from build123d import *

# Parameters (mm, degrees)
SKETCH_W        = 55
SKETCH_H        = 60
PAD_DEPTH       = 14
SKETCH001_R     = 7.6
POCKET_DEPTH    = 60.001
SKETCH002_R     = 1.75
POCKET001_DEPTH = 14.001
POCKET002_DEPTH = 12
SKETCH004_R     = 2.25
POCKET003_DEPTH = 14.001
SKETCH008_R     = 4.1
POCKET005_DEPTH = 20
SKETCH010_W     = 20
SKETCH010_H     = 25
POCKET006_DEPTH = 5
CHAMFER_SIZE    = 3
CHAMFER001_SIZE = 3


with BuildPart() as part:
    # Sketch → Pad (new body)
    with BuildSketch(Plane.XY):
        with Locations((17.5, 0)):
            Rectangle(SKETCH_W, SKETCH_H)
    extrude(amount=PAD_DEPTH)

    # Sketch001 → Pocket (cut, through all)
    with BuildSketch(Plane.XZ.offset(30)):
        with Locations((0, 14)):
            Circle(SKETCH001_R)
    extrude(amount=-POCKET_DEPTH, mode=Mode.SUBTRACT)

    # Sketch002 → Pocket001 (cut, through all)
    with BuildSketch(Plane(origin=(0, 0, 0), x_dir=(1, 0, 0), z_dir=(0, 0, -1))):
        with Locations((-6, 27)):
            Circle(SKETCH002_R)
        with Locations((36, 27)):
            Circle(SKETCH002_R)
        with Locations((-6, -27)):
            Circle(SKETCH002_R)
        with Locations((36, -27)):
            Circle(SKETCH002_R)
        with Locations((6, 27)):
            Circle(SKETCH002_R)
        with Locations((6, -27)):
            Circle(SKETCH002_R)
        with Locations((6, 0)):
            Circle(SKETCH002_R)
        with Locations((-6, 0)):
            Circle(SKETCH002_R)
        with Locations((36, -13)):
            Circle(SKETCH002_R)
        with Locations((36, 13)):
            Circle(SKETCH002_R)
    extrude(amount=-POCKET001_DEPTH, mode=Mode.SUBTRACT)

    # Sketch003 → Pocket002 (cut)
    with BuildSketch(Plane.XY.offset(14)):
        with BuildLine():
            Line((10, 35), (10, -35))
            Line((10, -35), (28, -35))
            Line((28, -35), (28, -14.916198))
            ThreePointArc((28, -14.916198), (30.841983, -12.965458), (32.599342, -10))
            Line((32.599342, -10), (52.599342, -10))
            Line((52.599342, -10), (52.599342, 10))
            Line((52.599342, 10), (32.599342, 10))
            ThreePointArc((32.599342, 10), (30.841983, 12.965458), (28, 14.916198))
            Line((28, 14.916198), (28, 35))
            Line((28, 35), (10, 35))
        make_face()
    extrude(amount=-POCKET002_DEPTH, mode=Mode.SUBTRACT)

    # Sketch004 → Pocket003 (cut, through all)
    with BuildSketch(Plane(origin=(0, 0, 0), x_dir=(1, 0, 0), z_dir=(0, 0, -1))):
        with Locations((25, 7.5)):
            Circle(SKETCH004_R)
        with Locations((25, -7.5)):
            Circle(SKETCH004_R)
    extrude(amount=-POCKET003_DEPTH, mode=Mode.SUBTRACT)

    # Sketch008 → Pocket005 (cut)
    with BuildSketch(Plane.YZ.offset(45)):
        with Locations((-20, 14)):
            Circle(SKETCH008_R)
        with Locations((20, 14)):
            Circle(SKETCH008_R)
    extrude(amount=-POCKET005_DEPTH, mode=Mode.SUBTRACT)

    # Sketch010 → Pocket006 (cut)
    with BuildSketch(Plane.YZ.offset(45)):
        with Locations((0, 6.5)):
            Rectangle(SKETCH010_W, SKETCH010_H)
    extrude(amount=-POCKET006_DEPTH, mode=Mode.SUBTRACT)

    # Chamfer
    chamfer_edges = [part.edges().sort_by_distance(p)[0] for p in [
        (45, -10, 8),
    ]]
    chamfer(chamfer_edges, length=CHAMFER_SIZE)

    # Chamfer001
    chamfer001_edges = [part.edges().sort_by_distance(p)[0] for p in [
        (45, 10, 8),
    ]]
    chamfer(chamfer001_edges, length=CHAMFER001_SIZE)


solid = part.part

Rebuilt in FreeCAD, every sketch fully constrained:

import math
import FreeCAD as App
import Part
import Sketcher


def edges_at(feature, points):
    """Names of the edges that pass closest to the given points."""
    edges = feature.Shape.Edges
    near = lambda p: min(range(len(edges)), key=lambda i: edges[i].distToShape(Part.Vertex(*p))[0])
    return sorted({f"Edge{near(p) + 1}" for p in points})


def add_polygon(sketch, points):
    """Adds a closed chain of lines whose ends are joined by coincident constraints."""
    first, n = sketch.GeometryCount, len(points)
    for a, b in zip(points, points[1:] + points[:1]):
        sketch.addGeometry(Part.LineSegment(App.Vector(*a, 0), App.Vector(*b, 0)), False)
    for i in range(n):
        sketch.addConstraint(Sketcher.Constraint("Coincident", first + i, 2, first + (i + 1) % n, 1))

doc = App.newDocument("Part")
body = doc.addObject("PartDesign::Body", "Body")

# Sketch on XY plane
sketch1 = body.newObject("Sketcher::SketchObject", "Sketch")
sketch1.AttachmentSupport = (doc.getObject("XY_Plane"), [""])
sketch1.MapMode = "FlatFace"
add_polygon(sketch1, [(-10, 30), (-10, -30), (45, -30), (45, 30)])  # lines 0-3
sketch1.addConstraint([
    Sketcher.Constraint("Vertical", 0),
    Sketcher.Constraint("Horizontal", 1),
    Sketcher.Constraint("Vertical", 2),
    Sketcher.Constraint("Horizontal", 3),
    Sketcher.Constraint("DistanceX", 1, 1, 1, 2, 55.0),
    Sketcher.Constraint("DistanceY", 0, 2, 0, 1, 60.0),
    Sketcher.Constraint("DistanceX", 0, 2, -1, 1, 10.0),
    Sketcher.Constraint("DistanceY", 0, 2, -1, 1, 30.0),
])
pad1 = body.newObject("PartDesign::Pad", "Pad")
pad1.Profile = sketch1
pad1.Length = 14

# Sketch on XZ plane
sketch2 = body.newObject("Sketcher::SketchObject", "Sketch001")
sketch2.AttachmentSupport = (doc.getObject("XZ_Plane"), [""])
sketch2.MapMode = "FlatFace"
sketch2.AttachmentOffset = App.Placement(App.Vector(0, 0, 30), App.Rotation())
sketch2.addGeometry(Part.Circle(App.Vector(0, 14, 0), App.Vector(0, 0, 1), 8), False)
sketch2.addConstraint([
    Sketcher.Constraint("PointOnObject", 0, 3, -2),
    Sketcher.Constraint("Diameter", 0, 15.2),
    Sketcher.Constraint("DistanceY", -1, 1, 0, 3, 14.0),
])
pocket1 = body.newObject("PartDesign::Pocket", "Pocket")
pocket1.Profile = sketch2
pocket1.Type = "ThroughAll"

# Sketch on XY plane
sketch3 = body.newObject("Sketcher::SketchObject", "Sketch002")
sketch3.AttachmentSupport = (doc.getObject("XY_Plane"), [""])
sketch3.MapMode = "FlatFace"
sketch3.addGeometry([
    Part.Circle(App.Vector(-6, -27, 0), App.Vector(0, 0, 1), 1.8),  # 0
    Part.Circle(App.Vector(36, -27, 0), App.Vector(0, 0, 1), 1.8),  # 1
    Part.Circle(App.Vector(-6, 27, 0), App.Vector(0, 0, 1), 1.8),  # 2
    Part.Circle(App.Vector(36, 27, 0), App.Vector(0, 0, 1), 1.8),  # 3
    Part.Circle(App.Vector(6, -27, 0), App.Vector(0, 0, 1), 1.8),  # 4
    Part.Circle(App.Vector(6, 27, 0), App.Vector(0, 0, 1), 1.8),  # 5
    Part.Circle(App.Vector(6, 0, 0), App.Vector(0, 0, 1), 1.8),  # 6
    Part.Circle(App.Vector(-6, 0, 0), App.Vector(0, 0, 1), 1.8),  # 7
    Part.Circle(App.Vector(36, 13, 0), App.Vector(0, 0, 1), 1.8),  # 8
    Part.Circle(App.Vector(36, -13, 0), App.Vector(0, 0, 1), 1.8),  # 9
], False)
sketch3.addConstraint([
    Sketcher.Constraint("Equal", 0, 1),
    Sketcher.Constraint("Equal", 1, 2),
    Sketcher.Constraint("Equal", 2, 3),
    Sketcher.Constraint("Equal", 3, 4),
    Sketcher.Constraint("Equal", 4, 5),
    Sketcher.Constraint("Equal", 5, 6),
    Sketcher.Constraint("Equal", 6, 7),
    Sketcher.Constraint("Equal", 7, 8),
    Sketcher.Constraint("Equal", 8, 9),
    Sketcher.Constraint("Symmetric", 2, 3, 4, 3, -1, 1),
    Sketcher.Constraint("Symmetric", 0, 3, 5, 3, -1, 1),
    Sketcher.Constraint("Symmetric", 6, 3, 7, 3, -1, 1),
    Sketcher.Constraint("Symmetric", 0, 3, 4, 3, -2),
    Sketcher.Constraint("Symmetric", 1, 3, 3, 3, -1),
    Sketcher.Constraint("Symmetric", 8, 3, 9, 3, -1),
    Sketcher.Constraint("PointOnObject", 6, 3, -1),
    Sketcher.Constraint("Horizontal", 0, 3, 1, 3),
    Sketcher.Constraint("Vertical", 5, 3, 6, 3),
    Sketcher.Constraint("Vertical", 3, 3, 8, 3),
    Sketcher.Constraint("Diameter", 0, 3.5),
    Sketcher.Constraint("DistanceX", 0, 3, -1, 1, 6.0),
    Sketcher.Constraint("DistanceY", 0, 3, -1, 1, 27.0),
    Sketcher.Constraint("DistanceX", -1, 1, 1, 3, 36.0),
    Sketcher.Constraint("DistanceY", -1, 1, 8, 3, 13.0),
])
pocket2 = body.newObject("PartDesign::Pocket", "Pocket001")
pocket2.Profile = sketch3
pocket2.Type = "ThroughAll"
pocket2.Reversed = True

# Sketch on XY plane
sketch4 = body.newObject("Sketcher::SketchObject", "Sketch003")
sketch4.AttachmentSupport = (doc.getObject("XY_Plane"), [""])
sketch4.MapMode = "FlatFace"
sketch4.AttachmentOffset = App.Placement(App.Vector(0, 0, 14), App.Rotation())
sketch4.addGeometry([
    Part.LineSegment(App.Vector(10, 35, 0), App.Vector(10, -35, 0)),  # 0
    Part.LineSegment(App.Vector(10, -35, 0), App.Vector(28, -35, 0)),  # 1
    Part.LineSegment(App.Vector(28, -35, 0), App.Vector(28, -15, 0)),  # 2
    Part.ArcOfCircle(Part.Circle(App.Vector(25, -8, 0), App.Vector(0, 0, 1), 8), math.radians(-68), math.radians(-18)),  # 3
    Part.LineSegment(App.Vector(33, -10, 0), App.Vector(53, -10, 0)),  # 4
    Part.LineSegment(App.Vector(53, -10, 0), App.Vector(53, 10, 0)),  # 5
    Part.LineSegment(App.Vector(53, 10, 0), App.Vector(33, 10, 0)),  # 6
    Part.ArcOfCircle(Part.Circle(App.Vector(25, 8, 0), App.Vector(0, 0, 1), 8), math.radians(18), math.radians(68)),  # 7
    Part.LineSegment(App.Vector(28, 15, 0), App.Vector(28, 35, 0)),  # 8
    Part.LineSegment(App.Vector(28, 35, 0), App.Vector(10, 35, 0)),  # 9
], False)
sketch4.addConstraint([
    Sketcher.Constraint("Coincident", 0, 2, 1, 1),
    Sketcher.Constraint("Coincident", 1, 2, 2, 1),
    Sketcher.Constraint("Coincident", 2, 2, 3, 1),
    Sketcher.Constraint("Coincident", 3, 2, 4, 1),
    Sketcher.Constraint("Coincident", 4, 2, 5, 1),
    Sketcher.Constraint("Coincident", 5, 2, 6, 1),
    Sketcher.Constraint("Coincident", 6, 2, 7, 1),
    Sketcher.Constraint("Coincident", 7, 2, 8, 1),
    Sketcher.Constraint("Coincident", 8, 2, 9, 1),
    Sketcher.Constraint("Coincident", 9, 2, 0, 1),
    Sketcher.Constraint("Vertical", 0),
    Sketcher.Constraint("Horizontal", 1),
    Sketcher.Constraint("Vertical", 2),
    Sketcher.Constraint("Horizontal", 4),
    Sketcher.Constraint("Vertical", 5),
    Sketcher.Constraint("Horizontal", 6),
    Sketcher.Constraint("Vertical", 8),
    Sketcher.Constraint("Horizontal", 9),
    Sketcher.Constraint("Equal", 3, 7),
    Sketcher.Constraint("Symmetric", 3, 3, 7, 3, -1),
    Sketcher.Constraint("Symmetric", 1, 2, 8, 2, -1),
    Sketcher.Constraint("Vertical", 3, 2, 6, 2),
    Sketcher.Constraint("Equal", 6, 5),
    Sketcher.Constraint("Radius", 3, 7.999999),
    Sketcher.Constraint("DistanceX", 1, 1, 1, 2, 18.0),
    Sketcher.Constraint("DistanceX", 4, 1, 4, 2, 20.0),
    Sketcher.Constraint("DistanceY", 0, 2, 0, 1, 70.0),
    Sketcher.Constraint("DistanceX", -1, 1, 3, 3, 25.000001),
    Sketcher.Constraint("DistanceX", -1, 1, 0, 2, 10.0),
    Sketcher.Constraint("DistanceY", 3, 3, 7, 3, 15.0),
])
pocket3 = body.newObject("PartDesign::Pocket", "Pocket002")
pocket3.Profile = sketch4
pocket3.Length = 12

# Sketch on XY plane
sketch5 = body.newObject("Sketcher::SketchObject", "Sketch004")
sketch5.AttachmentSupport = (doc.getObject("XY_Plane"), [""])
sketch5.MapMode = "FlatFace"
sketch5.addGeometry([
    Part.Circle(App.Vector(25, -7.5, 0), App.Vector(0, 0, 1), 2.2),
    Part.Circle(App.Vector(25, 7.5, 0), App.Vector(0, 0, 1), 2.2),
], False)
sketch5.addConstraint([
    Sketcher.Constraint("Equal", 0, 1),
    Sketcher.Constraint("Symmetric", 0, 3, 1, 3, -1),
    Sketcher.Constraint("Diameter", 0, 4.5),
    Sketcher.Constraint("DistanceX", -1, 1, 0, 3, 25.0),
    Sketcher.Constraint("DistanceY", 0, 3, 1, 3, 15.0),
])
pocket4 = body.newObject("PartDesign::Pocket", "Pocket003")
pocket4.Profile = sketch5
pocket4.Type = "ThroughAll"
pocket4.Reversed = True

# Sketch on YZ plane
sketch6 = body.newObject("Sketcher::SketchObject", "Sketch005")
sketch6.AttachmentSupport = (doc.getObject("YZ_Plane"), [""])
sketch6.MapMode = "FlatFace"
sketch6.AttachmentOffset = App.Placement(App.Vector(0, 0, 45), App.Rotation())
sketch6.addGeometry([
    Part.Circle(App.Vector(-20, 14, 0), App.Vector(0, 0, 1), 4.1),
    Part.Circle(App.Vector(20, 14, 0), App.Vector(0, 0, 1), 4.1),
], False)
sketch6.addConstraint([
    Sketcher.Constraint("Equal", 0, 1),
    Sketcher.Constraint("Symmetric", 0, 3, 1, 3, -2),
    Sketcher.Constraint("Diameter", 0, 8.2),
    Sketcher.Constraint("DistanceX", 0, 3, -1, 1, 20.0),
    Sketcher.Constraint("DistanceY", -1, 1, 0, 3, 14.0),
])
pocket5 = body.newObject("PartDesign::Pocket", "Pocket004")
pocket5.Profile = sketch6
pocket5.Length = 20

# Sketch on YZ plane
sketch7 = body.newObject("Sketcher::SketchObject", "Sketch006")
sketch7.AttachmentSupport = (doc.getObject("YZ_Plane"), [""])
sketch7.MapMode = "FlatFace"
sketch7.AttachmentOffset = App.Placement(App.Vector(0, 0, 45), App.Rotation())
add_polygon(sketch7, [(-10, 19), (-10, -6), (10, -6), (10, 19)])  # lines 0-3
sketch7.addConstraint([
    Sketcher.Constraint("Vertical", 0),
    Sketcher.Constraint("Horizontal", 1),
    Sketcher.Constraint("Vertical", 2),
    Sketcher.Constraint("Horizontal", 3),
    Sketcher.Constraint("DistanceX", 1, 1, 1, 2, 20.0),
    Sketcher.Constraint("DistanceY", 0, 2, 0, 1, 25.0),
    Sketcher.Constraint("DistanceX", 0, 2, -1, 1, 10.0),
    Sketcher.Constraint("DistanceY", 0, 2, -1, 1, 6.0),
])
pocket6 = body.newObject("PartDesign::Pocket", "Pocket005")
pocket6.Profile = sketch7
pocket6.Length = 5
doc.recompute()

chamfer = body.newObject("PartDesign::Chamfer", "Chamfer")
chamfer.Base = (pocket6, edges_at(pocket6, [(45, -10, 7)]))
chamfer.Size = 3
doc.recompute()

chamfer2 = body.newObject("PartDesign::Chamfer", "Chamfer001")
chamfer2.Base = (chamfer, edges_at(chamfer, [(45, 10, 7)]))
chamfer2.Size = 3

doc.recompute()
